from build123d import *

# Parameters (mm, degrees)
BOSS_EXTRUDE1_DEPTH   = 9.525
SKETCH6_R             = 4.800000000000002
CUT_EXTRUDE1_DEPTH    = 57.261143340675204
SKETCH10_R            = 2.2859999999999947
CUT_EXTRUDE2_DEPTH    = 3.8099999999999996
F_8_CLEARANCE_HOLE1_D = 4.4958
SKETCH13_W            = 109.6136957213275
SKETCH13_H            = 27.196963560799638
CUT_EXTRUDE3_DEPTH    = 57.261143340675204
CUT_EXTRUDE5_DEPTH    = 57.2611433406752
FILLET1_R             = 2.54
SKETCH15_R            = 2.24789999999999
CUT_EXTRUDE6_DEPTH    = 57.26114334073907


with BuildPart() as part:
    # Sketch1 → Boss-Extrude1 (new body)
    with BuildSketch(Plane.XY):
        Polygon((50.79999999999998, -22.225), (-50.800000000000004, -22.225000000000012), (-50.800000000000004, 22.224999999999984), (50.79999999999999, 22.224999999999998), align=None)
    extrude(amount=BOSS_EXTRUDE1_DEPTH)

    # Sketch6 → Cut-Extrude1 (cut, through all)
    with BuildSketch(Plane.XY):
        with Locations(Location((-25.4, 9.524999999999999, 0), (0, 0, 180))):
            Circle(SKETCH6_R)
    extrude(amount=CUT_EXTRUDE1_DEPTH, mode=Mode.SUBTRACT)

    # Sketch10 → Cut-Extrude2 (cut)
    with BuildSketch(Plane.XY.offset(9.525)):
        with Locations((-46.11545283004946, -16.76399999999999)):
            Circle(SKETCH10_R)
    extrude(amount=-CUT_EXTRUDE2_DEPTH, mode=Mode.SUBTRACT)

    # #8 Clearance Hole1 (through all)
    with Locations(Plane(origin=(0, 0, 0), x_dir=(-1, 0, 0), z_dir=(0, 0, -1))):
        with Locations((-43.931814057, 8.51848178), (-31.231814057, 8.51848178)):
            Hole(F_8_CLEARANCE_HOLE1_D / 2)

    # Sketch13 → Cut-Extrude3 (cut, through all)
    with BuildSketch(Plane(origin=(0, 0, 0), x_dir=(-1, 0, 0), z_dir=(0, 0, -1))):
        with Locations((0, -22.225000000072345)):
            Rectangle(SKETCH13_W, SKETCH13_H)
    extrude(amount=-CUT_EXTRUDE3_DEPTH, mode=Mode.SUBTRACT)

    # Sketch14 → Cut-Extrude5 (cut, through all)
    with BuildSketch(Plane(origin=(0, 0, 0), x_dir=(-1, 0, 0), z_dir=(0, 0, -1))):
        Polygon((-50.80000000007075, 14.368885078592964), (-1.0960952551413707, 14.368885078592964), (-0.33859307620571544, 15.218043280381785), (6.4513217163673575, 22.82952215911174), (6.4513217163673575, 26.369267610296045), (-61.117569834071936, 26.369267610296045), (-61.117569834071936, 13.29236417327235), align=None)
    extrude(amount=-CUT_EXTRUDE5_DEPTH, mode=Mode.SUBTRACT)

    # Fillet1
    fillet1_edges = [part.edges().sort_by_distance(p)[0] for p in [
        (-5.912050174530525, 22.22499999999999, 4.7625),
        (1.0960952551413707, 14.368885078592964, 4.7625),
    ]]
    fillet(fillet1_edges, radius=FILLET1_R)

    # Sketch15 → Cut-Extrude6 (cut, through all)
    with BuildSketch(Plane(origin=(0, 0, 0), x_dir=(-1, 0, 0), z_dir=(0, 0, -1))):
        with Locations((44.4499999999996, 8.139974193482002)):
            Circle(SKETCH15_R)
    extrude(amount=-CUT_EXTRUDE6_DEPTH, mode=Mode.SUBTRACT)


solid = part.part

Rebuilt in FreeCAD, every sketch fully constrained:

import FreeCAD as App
import Part
import Sketcher
Q = App.Units.Quantity


def edges_at(feature, points):
    """Names of the edges that pass closest to the given points."""
    edges = feature.Shape.Edges
    near = lambda p: min(range(len(edges)), key=lambda i: edges[i].distToShape(Part.Vertex(*p))[0])
    return sorted({f"Edge{near(p) + 1}" for p in points})

doc = App.newDocument("Part")
body = doc.addObject("PartDesign::Body", "Body")

# Sketch on XY plane
sketch1 = body.newObject("Sketcher::SketchObject", "Sketch")
sketch1.AttachmentSupport = (doc.getObject("XY_Plane"), [""])
sketch1.MapMode = "FlatFace"
sketch1.addGeometry([
    Part.LineSegment(App.Vector(-51, -22, 0), App.Vector(51, -22, 0)),
    Part.LineSegment(App.Vector(51, -22, 0), App.Vector(51, 22, 0)),
    Part.LineSegment(App.Vector(51, 22, 0), App.Vector(-51, 22, 0)),
    Part.LineSegment(App.Vector(-51, 22, 0), App.Vector(-51, -22, 0)),
], False)
sketch1.addConstraint([
    Sketcher.Constraint("Coincident", 0, 2, 1, 1),
    Sketcher.Constraint("Coincident", 1, 2, 2, 1),
    Sketcher.Constraint("Coincident", 2, 2, 3, 1),
    Sketcher.Constraint("Coincident", 3, 2, 0, 1),
    Sketcher.Constraint("Horizontal", 0),
    Sketcher.Constraint("Vertical", 1),
    Sketcher.Constraint("Horizontal", 2),
    Sketcher.Constraint("Vertical", 3),
    Sketcher.Constraint("Symmetric", 0, 2, 2, 2, -1, 1),
    Sketcher.Constraint("DistanceX", 0, 1, 0, 2, Q("4 in")),
    Sketcher.Constraint("DistanceY", 1, 1, 1, 2, Q("1.75 in")),
])
pad1 = body.newObject("PartDesign::Pad", "Pad")
pad1.Profile = sketch1
pad1.Length = Q("0.375 in")

# Sketch on XY plane
sketch2 = body.newObject("Sketcher::SketchObject", "Sketch001")
sketch2.AttachmentSupport = (doc.getObject("XY_Plane"), [""])
sketch2.MapMode = "FlatFace"
sketch2.addGeometry(Part.Circle(App.Vector(-25.4, 9.5, 0), App.Vector(0, 0, 1), 4.8), False)
sketch2.addConstraint([
    Sketcher.Constraint("DistanceX", 0, 3, -1, 1, Q("1 in")),
    Sketcher.Constraint("Diameter", 0, 9.6),
    Sketcher.Constraint("DistanceY", -1, 1, 0, 3, Q("0.375 in")),
])
pocket1 = body.newObject("PartDesign::Pocket", "Pocket")
pocket1.Profile = sketch2
pocket1.Type = "ThroughAll"
pocket1.Reversed = True

# Sketch on XY plane
sketch3 = body.newObject("Sketcher::SketchObject", "Sketch002")
sketch3.AttachmentSupport = (doc.getObject("XY_Plane"), [""])
sketch3.MapMode = "FlatFace"
sketch3.AttachmentOffset = App.Placement(App.Vector(0, 0, 0.375 * 25.4), App.Rotation())
sketch3.addGeometry(Part.Circle(App.Vector(-46.1, -16.8, 0), App.Vector(0, 0, 1), 2.3), False)
sketch3.addConstraint([
    Sketcher.Constraint("Diameter", 0, Q("0.18 in")),
    Sketcher.Constraint("DistanceY", 0, 3, -1, 1, Q("0.66 in")),
    Sketcher.Constraint("DistanceX", 0, 3, -1, 1, 46.115453),
])
pocket2 = body.newObject("PartDesign::Pocket", "Pocket001")
pocket2.Profile = sketch3
pocket2.Length = Q("0.15 in")

# Sketch on XY plane
sketch4 = body.newObject("Sketcher::SketchObject", "Sketch003")
sketch4.AttachmentSupport = (doc.getObject("XY_Plane"), [""])
sketch4.MapMode = "FlatFace"
sketch4.addGeometry([
    Part.Circle(App.Vector(43.9, 8.5, 0), App.Vector(0, 0, 1), 2.2),
    Part.Circle(App.Vector(31.2, 8.5, 0), App.Vector(0, 0, 1), 2.2),
], False)
sketch4.addConstraint([
    Sketcher.Constraint("Equal", 0, 1),
    Sketcher.Constraint("Horizontal", 0, 3, 1, 3),
    Sketcher.Constraint("Diameter", 0, Q("0.177 in")),
    Sketcher.Constraint("DistanceX", 1, 3, 0, 3, Q("0.5 in")),
    Sketcher.Constraint("DistanceY", -1, 1, 0, 3, 8.518482),
    Sketcher.Constraint("DistanceX", -1, 1, 0, 3, 43.931814),
])
doc.recompute()
hole = body.newObject("PartDesign::Hole", "Hole")
hole.Profile = sketch4
hole.ThreadType = "None"
hole.Diameter = Q("0.177 in")
hole.DepthType = "ThroughAll"
hole.Reversed = True

# Sketch on XY plane
sketch5 = body.newObject("Sketcher::SketchObject", "Sketch004")
sketch5.AttachmentSupport = (doc.getObject("XY_Plane"), [""])
sketch5.MapMode = "FlatFace"
sketch5.addGeometry([
    Part.LineSegment(App.Vector(55, -9, 0), App.Vector(55, -36, 0)),
    Part.LineSegment(App.Vector(55, -36, 0), App.Vector(-55, -36, 0)),
    Part.LineSegment(App.Vector(-55, -36, 0), App.Vector(-55, -9, 0)),
    Part.LineSegment(App.Vector(-55, -9, 0), App.Vector(55, -9, 0)),
], False)
sketch5.addConstraint([
    Sketcher.Constraint("Coincident", 0, 2, 1, 1),
    Sketcher.Constraint("Coincident", 1, 2, 2, 1),
    Sketcher.Constraint("Coincident", 2, 2, 3, 1),
    Sketcher.Constraint("Coincident", 3, 2, 0, 1),
    Sketcher.Constraint("Vertical", 0),
    Sketcher.Constraint("Horizontal", 1),
    Sketcher.Constraint("Vertical", 2),
    Sketcher.Constraint("Horizontal", 3),
    Sketcher.Constraint("DistanceX", 1, 2, 1, 1, Q("4.3154998 in")),
    Sketcher.Constraint("DistanceY", 0, 2, 0, 1, 27.196964),
    Sketcher.Constraint("DistanceY", 0, 2, -1, 1, 35.823482),
    Sketcher.Constraint("DistanceX", -1, 1, 0, 2, 54.806848),
])
pocket3 = body.newObject("PartDesign::Pocket", "Pocket002")
pocket3.Profile = sketch5
pocket3.Type = "ThroughAll"
pocket3.Reversed = True

# Sketch on XY plane
sketch6 = body.newObject("Sketcher::SketchObject", "Sketch005")
sketch6.AttachmentSupport = (doc.getObject("XY_Plane"), [""])
sketch6.MapMode = "FlatFace"
sketch6.addGeometry([
    Part.LineSegment(App.Vector(50.8, 14.4, 0), App.Vector(1.1, 14.4, 0)),  # 0
    Part.LineSegment(App.Vector(1.1, 14.4, 0), App.Vector(-6.5, 22.8, 0)),  # 1
    Part.LineSegment(App.Vector(-6.5, 22.8, 0), App.Vector(-6.5, 26.4, 0)),  # 2
    Part.LineSegment(App.Vector(-6.5, 26.4, 0), App.Vector(61.1, 26.4, 0)),  # 3
    Part.LineSegment(App.Vector(61.1, 26.4, 0), App.Vector(61.1, 13.3, 0)),  # 4
    Part.LineSegment(App.Vector(61.1, 13.3, 0), App.Vector(50.8, 14.4, 0)),  # 5
], False)
sketch6.addConstraint([
    Sketcher.Constraint("Coincident", 0, 2, 1, 1),
    Sketcher.Constraint("Coincident", 1, 2, 2, 1),
    Sketcher.Constraint("Coincident", 2, 2, 3, 1),
    Sketcher.Constraint("Coincident", 3, 2, 4, 1),
    Sketcher.Constraint("Coincident", 4, 2, 5, 1),
    Sketcher.Constraint("Coincident", 5, 2, 0, 1),
    Sketcher.Constraint("Horizontal", 0),
    Sketcher.Constraint("Vertical", 2),
    Sketcher.Constraint("Horizontal", 3),
    Sketcher.Constraint("Vertical", 4),
    Sketcher.Constraint("DistanceX", -1, 1, 5, 2, Q("2 in")),
    Sketcher.Constraint("DistanceY", -1, 1, 1, 2, Q("0.8988001 in")),
    Sketcher.Constraint("DistanceX", 3, 1, 3, 2, 67.568892),
    Sketcher.Constraint("Distance", 5, 10.373579),
    Sketcher.Constraint("DistanceX", 0, 2, 0, 1, 49.703905),
    Sketcher.Constraint("DistanceY", 2, 1, 2, 2, 3.539745),
    Sketcher.Constraint("DistanceY", 4, 2, 4, 1, 13.076903),
    Sketcher.Constraint("DistanceX", 1, 2, -1, 1, 6.451322),
])
pocket4 = body.newObject("PartDesign::Pocket", "Pocket003")
pocket4.Profile = sketch6
pocket4.Type = "ThroughAll"
pocket4.Reversed = True
doc.recompute()

fillet = body.newObject("PartDesign::Fillet", "Fillet")
fillet.Base = (pocket4, edges_at(pocket4, [(-5.912, 22.225, 4.763), (1.096, 14.369, 4.763)]))
fillet.Radius = Q("0.1 in")

# Sketch on XY plane
sketch7 = body.newObject("Sketcher::SketchObject", "Sketch006")
sketch7.AttachmentSupport = (doc.getObject("XY_Plane"), [""])
sketch7.MapMode = "FlatFace"
sketch7.addGeometry(Part.Circle(App.Vector(-44.5, 8.1, 0), App.Vector(0, 0, 1), 2.2), False)
sketch7.addConstraint([
    Sketcher.Constraint("Diameter", 0, Q("0.177 in")),
    Sketcher.Constraint("DistanceX", 0, 3, -1, 1, Q("1.75 in")),
    Sketcher.Constraint("DistanceY", -1, 1, 0, 3, 8.139974),
])
pocket5 = body.newObject("PartDesign::Pocket", "Pocket004")
pocket5.Profile = sketch7
pocket5.Type = "ThroughAll"
pocket5.Reversed = True

doc.recompute()
